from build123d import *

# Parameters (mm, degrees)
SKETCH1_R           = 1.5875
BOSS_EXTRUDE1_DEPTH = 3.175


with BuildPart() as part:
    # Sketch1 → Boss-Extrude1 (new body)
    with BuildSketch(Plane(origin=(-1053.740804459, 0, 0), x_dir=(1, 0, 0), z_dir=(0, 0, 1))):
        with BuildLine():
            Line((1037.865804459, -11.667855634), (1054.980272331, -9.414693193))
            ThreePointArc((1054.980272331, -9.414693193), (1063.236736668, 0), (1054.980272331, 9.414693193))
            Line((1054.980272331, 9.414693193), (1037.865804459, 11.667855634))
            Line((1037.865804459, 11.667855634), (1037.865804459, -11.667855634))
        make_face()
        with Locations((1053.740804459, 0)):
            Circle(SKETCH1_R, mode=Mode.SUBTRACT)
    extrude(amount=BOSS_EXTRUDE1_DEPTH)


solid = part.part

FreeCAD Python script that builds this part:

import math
import FreeCAD as App
import Part
import Sketcher
from FreeCAD import Vector
Q = App.Units.Quantity

doc = App.newDocument("Part")
params = doc.addObject("Spreadsheet::Sheet", "Params")
for row, (alias, value) in enumerate([
    ("sketch1_diameter", "0.125 in"),
    ("pad1_length", "0.125 in"),
], start=1):
    params.set(f"A{row}", alias)
    params.set(f"B{row}", "=" + value)
    params.setAlias(f"B{row}", alias)

body = doc.addObject("PartDesign::Body", "Body")

sketch1 = body.newObject("Sketcher::SketchObject", "Sketch")
sketch1.AttachmentSupport = (doc.getObject("XY_Plane"), [""])
sketch1.MapMode = "FlatFace"
sketch1.addGeometry([
    Part.LineSegment(Vector(-15.9, -11.7, 0), Vector(1.2, -9.4, 0)),
    Part.ArcOfCircle(Part.Circle(Vector(0, 0, 0), Vector(0, 0, 1), 9.5), math.radians(-83), math.radians(83)),
    Part.LineSegment(Vector(1.2, 9.4, 0), Vector(-15.9, 11.7, 0)),
    Part.LineSegment(Vector(-15.9, 11.7, 0), Vector(-15.9, -11.7, 0)),
    Part.Circle(Vector(0, 0, 0), Vector(0, 0, 1), 1.6),
], False)
sketch1.addConstraint([
    Sketcher.Constraint("Tangent", 0, 2, 1, 1),
    Sketcher.Constraint("Tangent", 1, 2, 2, 1),
    Sketcher.Constraint("Coincident", 2, 2, 3, 1),
    Sketcher.Constraint("Coincident", 3, 2, 0, 1),
    Sketcher.Constraint("Vertical", 3),
    Sketcher.Constraint("Coincident", 1, 3, -1, 1),
    Sketcher.Constraint("Coincident", 4, 3, -1, 1),
    Sketcher.Constraint("Vertical", 0, 2, 1, 2),
    Sketcher.Constraint("Diameter", 4, Q("0.125 in")),
    Sketcher.Constraint("Angle", 0, Q("7.5 deg")),
    Sketcher.Constraint("DistanceX", 2, 2, -1, 1, Q("0.625 in")),
    Sketcher.Constraint("Radius", 1, Q("9.495932 mm")),
])
sketch1.setExpression("Constraints[8]", "Params.sketch1_diameter")
pad1 = body.newObject("PartDesign::Pad", "Pad")
pad1.Profile = sketch1
pad1.setExpression("Length", "Params.pad1_length")

doc.recompute()
